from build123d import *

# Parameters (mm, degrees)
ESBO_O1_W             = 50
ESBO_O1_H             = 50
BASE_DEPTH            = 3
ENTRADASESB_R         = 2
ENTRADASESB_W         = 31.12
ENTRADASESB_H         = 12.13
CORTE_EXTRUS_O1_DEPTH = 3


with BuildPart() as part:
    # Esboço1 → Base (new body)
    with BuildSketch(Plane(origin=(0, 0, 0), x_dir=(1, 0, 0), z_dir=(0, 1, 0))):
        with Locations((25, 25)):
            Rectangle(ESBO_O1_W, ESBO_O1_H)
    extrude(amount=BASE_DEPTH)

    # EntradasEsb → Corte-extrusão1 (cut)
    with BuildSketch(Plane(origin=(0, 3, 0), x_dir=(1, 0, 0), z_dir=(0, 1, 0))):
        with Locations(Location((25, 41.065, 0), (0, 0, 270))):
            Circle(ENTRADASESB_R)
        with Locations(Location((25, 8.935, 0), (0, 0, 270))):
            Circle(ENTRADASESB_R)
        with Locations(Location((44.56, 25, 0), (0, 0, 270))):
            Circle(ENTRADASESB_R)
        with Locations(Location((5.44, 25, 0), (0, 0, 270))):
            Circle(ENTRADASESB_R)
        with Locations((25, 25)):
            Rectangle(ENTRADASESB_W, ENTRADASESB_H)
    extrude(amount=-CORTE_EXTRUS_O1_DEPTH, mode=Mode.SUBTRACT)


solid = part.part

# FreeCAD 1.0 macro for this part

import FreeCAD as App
import Part
import Sketcher

V = App.Vector
Q = App.Units.Quantity


def add_polygon(sketch, points):
    """Adds a closed chain of lines whose ends are joined by coincident constraints."""
    first, n = sketch.GeometryCount, len(points)
    for a, b in zip(points, points[1:] + points[:1]):
        sketch.addGeometry(Part.LineSegment(App.Vector(*a, 0), App.Vector(*b, 0)), False)
    for i in range(n):
        sketch.addConstraint(Sketcher.Constraint("Coincident", first + i, 2, first + (i + 1) % n, 1))

doc = App.newDocument("Part")
body = doc.addObject("PartDesign::Body", "Body")

sketch1 = body.newObject("Sketcher::SketchObject", "Sketch")
sketch1.AttachmentSupport = (doc.getObject("XZ_Plane"), [""])
sketch1.MapMode = "FlatFace"
add_polygon(sketch1, [(0, -50), (0, 0), (50, 0), (50, -50)])
sketch1.addConstraint([
    Sketcher.Constraint("Vertical", 0),
    Sketcher.Constraint("Horizontal", 1),
    Sketcher.Constraint("Vertical", 2),
    Sketcher.Constraint("Horizontal", 3),
    Sketcher.Constraint("Coincident", 0, 2, -1, 1),
    Sketcher.Constraint("Equal", 3, 0),
    Sketcher.Constraint("DistanceX", 1, 1, 1, 2, Q("50 mm")),
])
pad1 = body.newObject("PartDesign::Pad", "Pad")
pad1.Profile = sketch1
pad1.Length = 3
pad1.Reversed = True

sketch2 = body.newObject("Sketcher::SketchObject", "Sketch001")
sketch2.AttachmentSupport = (doc.getObject("XZ_Plane"), [""])
sketch2.MapMode = "FlatFace"
sketch2.AttachmentOffset = App.Placement(V(0, 0, -3), App.Rotation())
sketch2.addGeometry(Part.Circle(V(25, -41.1, 0), V(0, 0, 1), 2), False)
sketch2.addGeometry(Part.Circle(V(25, -8.9, 0), V(0, 0, 1), 2), False)
sketch2.addGeometry(Part.Circle(V(44.6, -25, 0), V(0, 0, 1), 2), False)
sketch2.addGeometry(Part.Circle(V(5.4, -25, 0), V(0, 0, 1), 2), False)
add_polygon(sketch2, [(9.4, -31.1), (9.4, -18.9), (40.6, -18.9), (40.6, -31.1)])
sketch2.addConstraint([
    Sketcher.Constraint("Vertical", 4),
    Sketcher.Constraint("Horizontal", 5),
    Sketcher.Constraint("Vertical", 6),
    Sketcher.Constraint("Horizontal", 7),
    Sketcher.Constraint("Equal", 0, 1),
    Sketcher.Constraint("Equal", 1, 2),
    Sketcher.Constraint("Equal", 2, 3),
    Sketcher.Constraint("Horizontal", 2, 3, 3, 3),
    Sketcher.Constraint("Vertical", 0, 3, 1, 3),
    Sketcher.Constraint("Diameter", 0, Q("4 mm")),
    Sketcher.Constraint("DistanceX", -1, 1, 0, 3, Q("25 mm")),
    Sketcher.Constraint("DistanceY", 2, 3, -1, 1, Q("25 mm")),
    Sketcher.Constraint("DistanceX", 3, 3, 4, 2, Q("4 mm")),
    Sketcher.Constraint("DistanceY", 4, 2, 1, 3, Q("10 mm")),
    Sketcher.Constraint("DistanceX", 5, 2, 2, 3, Q("4 mm")),
    Sketcher.Constraint("DistanceY", 0, 3, 6, 2, Q("10 mm")),
    Sketcher.Constraint("DistanceX", 5, 1, 5, 2, Q("31.12 mm")),
    Sketcher.Constraint("DistanceY", 4, 1, 4, 2, Q("12.13 mm")),
    Sketcher.Constraint("DistanceX", -1, 1, 2, 3, Q("44.56 mm")),
    Sketcher.Constraint("DistanceY", 0, 3, -1, 1, Q("41.065 mm")),
])
pocket1 = body.newObject("PartDesign::Pocket", "Pocket")
pocket1.Profile = sketch2
pocket1.Length = 3
pocket1.Reversed = True

doc.recompute()
